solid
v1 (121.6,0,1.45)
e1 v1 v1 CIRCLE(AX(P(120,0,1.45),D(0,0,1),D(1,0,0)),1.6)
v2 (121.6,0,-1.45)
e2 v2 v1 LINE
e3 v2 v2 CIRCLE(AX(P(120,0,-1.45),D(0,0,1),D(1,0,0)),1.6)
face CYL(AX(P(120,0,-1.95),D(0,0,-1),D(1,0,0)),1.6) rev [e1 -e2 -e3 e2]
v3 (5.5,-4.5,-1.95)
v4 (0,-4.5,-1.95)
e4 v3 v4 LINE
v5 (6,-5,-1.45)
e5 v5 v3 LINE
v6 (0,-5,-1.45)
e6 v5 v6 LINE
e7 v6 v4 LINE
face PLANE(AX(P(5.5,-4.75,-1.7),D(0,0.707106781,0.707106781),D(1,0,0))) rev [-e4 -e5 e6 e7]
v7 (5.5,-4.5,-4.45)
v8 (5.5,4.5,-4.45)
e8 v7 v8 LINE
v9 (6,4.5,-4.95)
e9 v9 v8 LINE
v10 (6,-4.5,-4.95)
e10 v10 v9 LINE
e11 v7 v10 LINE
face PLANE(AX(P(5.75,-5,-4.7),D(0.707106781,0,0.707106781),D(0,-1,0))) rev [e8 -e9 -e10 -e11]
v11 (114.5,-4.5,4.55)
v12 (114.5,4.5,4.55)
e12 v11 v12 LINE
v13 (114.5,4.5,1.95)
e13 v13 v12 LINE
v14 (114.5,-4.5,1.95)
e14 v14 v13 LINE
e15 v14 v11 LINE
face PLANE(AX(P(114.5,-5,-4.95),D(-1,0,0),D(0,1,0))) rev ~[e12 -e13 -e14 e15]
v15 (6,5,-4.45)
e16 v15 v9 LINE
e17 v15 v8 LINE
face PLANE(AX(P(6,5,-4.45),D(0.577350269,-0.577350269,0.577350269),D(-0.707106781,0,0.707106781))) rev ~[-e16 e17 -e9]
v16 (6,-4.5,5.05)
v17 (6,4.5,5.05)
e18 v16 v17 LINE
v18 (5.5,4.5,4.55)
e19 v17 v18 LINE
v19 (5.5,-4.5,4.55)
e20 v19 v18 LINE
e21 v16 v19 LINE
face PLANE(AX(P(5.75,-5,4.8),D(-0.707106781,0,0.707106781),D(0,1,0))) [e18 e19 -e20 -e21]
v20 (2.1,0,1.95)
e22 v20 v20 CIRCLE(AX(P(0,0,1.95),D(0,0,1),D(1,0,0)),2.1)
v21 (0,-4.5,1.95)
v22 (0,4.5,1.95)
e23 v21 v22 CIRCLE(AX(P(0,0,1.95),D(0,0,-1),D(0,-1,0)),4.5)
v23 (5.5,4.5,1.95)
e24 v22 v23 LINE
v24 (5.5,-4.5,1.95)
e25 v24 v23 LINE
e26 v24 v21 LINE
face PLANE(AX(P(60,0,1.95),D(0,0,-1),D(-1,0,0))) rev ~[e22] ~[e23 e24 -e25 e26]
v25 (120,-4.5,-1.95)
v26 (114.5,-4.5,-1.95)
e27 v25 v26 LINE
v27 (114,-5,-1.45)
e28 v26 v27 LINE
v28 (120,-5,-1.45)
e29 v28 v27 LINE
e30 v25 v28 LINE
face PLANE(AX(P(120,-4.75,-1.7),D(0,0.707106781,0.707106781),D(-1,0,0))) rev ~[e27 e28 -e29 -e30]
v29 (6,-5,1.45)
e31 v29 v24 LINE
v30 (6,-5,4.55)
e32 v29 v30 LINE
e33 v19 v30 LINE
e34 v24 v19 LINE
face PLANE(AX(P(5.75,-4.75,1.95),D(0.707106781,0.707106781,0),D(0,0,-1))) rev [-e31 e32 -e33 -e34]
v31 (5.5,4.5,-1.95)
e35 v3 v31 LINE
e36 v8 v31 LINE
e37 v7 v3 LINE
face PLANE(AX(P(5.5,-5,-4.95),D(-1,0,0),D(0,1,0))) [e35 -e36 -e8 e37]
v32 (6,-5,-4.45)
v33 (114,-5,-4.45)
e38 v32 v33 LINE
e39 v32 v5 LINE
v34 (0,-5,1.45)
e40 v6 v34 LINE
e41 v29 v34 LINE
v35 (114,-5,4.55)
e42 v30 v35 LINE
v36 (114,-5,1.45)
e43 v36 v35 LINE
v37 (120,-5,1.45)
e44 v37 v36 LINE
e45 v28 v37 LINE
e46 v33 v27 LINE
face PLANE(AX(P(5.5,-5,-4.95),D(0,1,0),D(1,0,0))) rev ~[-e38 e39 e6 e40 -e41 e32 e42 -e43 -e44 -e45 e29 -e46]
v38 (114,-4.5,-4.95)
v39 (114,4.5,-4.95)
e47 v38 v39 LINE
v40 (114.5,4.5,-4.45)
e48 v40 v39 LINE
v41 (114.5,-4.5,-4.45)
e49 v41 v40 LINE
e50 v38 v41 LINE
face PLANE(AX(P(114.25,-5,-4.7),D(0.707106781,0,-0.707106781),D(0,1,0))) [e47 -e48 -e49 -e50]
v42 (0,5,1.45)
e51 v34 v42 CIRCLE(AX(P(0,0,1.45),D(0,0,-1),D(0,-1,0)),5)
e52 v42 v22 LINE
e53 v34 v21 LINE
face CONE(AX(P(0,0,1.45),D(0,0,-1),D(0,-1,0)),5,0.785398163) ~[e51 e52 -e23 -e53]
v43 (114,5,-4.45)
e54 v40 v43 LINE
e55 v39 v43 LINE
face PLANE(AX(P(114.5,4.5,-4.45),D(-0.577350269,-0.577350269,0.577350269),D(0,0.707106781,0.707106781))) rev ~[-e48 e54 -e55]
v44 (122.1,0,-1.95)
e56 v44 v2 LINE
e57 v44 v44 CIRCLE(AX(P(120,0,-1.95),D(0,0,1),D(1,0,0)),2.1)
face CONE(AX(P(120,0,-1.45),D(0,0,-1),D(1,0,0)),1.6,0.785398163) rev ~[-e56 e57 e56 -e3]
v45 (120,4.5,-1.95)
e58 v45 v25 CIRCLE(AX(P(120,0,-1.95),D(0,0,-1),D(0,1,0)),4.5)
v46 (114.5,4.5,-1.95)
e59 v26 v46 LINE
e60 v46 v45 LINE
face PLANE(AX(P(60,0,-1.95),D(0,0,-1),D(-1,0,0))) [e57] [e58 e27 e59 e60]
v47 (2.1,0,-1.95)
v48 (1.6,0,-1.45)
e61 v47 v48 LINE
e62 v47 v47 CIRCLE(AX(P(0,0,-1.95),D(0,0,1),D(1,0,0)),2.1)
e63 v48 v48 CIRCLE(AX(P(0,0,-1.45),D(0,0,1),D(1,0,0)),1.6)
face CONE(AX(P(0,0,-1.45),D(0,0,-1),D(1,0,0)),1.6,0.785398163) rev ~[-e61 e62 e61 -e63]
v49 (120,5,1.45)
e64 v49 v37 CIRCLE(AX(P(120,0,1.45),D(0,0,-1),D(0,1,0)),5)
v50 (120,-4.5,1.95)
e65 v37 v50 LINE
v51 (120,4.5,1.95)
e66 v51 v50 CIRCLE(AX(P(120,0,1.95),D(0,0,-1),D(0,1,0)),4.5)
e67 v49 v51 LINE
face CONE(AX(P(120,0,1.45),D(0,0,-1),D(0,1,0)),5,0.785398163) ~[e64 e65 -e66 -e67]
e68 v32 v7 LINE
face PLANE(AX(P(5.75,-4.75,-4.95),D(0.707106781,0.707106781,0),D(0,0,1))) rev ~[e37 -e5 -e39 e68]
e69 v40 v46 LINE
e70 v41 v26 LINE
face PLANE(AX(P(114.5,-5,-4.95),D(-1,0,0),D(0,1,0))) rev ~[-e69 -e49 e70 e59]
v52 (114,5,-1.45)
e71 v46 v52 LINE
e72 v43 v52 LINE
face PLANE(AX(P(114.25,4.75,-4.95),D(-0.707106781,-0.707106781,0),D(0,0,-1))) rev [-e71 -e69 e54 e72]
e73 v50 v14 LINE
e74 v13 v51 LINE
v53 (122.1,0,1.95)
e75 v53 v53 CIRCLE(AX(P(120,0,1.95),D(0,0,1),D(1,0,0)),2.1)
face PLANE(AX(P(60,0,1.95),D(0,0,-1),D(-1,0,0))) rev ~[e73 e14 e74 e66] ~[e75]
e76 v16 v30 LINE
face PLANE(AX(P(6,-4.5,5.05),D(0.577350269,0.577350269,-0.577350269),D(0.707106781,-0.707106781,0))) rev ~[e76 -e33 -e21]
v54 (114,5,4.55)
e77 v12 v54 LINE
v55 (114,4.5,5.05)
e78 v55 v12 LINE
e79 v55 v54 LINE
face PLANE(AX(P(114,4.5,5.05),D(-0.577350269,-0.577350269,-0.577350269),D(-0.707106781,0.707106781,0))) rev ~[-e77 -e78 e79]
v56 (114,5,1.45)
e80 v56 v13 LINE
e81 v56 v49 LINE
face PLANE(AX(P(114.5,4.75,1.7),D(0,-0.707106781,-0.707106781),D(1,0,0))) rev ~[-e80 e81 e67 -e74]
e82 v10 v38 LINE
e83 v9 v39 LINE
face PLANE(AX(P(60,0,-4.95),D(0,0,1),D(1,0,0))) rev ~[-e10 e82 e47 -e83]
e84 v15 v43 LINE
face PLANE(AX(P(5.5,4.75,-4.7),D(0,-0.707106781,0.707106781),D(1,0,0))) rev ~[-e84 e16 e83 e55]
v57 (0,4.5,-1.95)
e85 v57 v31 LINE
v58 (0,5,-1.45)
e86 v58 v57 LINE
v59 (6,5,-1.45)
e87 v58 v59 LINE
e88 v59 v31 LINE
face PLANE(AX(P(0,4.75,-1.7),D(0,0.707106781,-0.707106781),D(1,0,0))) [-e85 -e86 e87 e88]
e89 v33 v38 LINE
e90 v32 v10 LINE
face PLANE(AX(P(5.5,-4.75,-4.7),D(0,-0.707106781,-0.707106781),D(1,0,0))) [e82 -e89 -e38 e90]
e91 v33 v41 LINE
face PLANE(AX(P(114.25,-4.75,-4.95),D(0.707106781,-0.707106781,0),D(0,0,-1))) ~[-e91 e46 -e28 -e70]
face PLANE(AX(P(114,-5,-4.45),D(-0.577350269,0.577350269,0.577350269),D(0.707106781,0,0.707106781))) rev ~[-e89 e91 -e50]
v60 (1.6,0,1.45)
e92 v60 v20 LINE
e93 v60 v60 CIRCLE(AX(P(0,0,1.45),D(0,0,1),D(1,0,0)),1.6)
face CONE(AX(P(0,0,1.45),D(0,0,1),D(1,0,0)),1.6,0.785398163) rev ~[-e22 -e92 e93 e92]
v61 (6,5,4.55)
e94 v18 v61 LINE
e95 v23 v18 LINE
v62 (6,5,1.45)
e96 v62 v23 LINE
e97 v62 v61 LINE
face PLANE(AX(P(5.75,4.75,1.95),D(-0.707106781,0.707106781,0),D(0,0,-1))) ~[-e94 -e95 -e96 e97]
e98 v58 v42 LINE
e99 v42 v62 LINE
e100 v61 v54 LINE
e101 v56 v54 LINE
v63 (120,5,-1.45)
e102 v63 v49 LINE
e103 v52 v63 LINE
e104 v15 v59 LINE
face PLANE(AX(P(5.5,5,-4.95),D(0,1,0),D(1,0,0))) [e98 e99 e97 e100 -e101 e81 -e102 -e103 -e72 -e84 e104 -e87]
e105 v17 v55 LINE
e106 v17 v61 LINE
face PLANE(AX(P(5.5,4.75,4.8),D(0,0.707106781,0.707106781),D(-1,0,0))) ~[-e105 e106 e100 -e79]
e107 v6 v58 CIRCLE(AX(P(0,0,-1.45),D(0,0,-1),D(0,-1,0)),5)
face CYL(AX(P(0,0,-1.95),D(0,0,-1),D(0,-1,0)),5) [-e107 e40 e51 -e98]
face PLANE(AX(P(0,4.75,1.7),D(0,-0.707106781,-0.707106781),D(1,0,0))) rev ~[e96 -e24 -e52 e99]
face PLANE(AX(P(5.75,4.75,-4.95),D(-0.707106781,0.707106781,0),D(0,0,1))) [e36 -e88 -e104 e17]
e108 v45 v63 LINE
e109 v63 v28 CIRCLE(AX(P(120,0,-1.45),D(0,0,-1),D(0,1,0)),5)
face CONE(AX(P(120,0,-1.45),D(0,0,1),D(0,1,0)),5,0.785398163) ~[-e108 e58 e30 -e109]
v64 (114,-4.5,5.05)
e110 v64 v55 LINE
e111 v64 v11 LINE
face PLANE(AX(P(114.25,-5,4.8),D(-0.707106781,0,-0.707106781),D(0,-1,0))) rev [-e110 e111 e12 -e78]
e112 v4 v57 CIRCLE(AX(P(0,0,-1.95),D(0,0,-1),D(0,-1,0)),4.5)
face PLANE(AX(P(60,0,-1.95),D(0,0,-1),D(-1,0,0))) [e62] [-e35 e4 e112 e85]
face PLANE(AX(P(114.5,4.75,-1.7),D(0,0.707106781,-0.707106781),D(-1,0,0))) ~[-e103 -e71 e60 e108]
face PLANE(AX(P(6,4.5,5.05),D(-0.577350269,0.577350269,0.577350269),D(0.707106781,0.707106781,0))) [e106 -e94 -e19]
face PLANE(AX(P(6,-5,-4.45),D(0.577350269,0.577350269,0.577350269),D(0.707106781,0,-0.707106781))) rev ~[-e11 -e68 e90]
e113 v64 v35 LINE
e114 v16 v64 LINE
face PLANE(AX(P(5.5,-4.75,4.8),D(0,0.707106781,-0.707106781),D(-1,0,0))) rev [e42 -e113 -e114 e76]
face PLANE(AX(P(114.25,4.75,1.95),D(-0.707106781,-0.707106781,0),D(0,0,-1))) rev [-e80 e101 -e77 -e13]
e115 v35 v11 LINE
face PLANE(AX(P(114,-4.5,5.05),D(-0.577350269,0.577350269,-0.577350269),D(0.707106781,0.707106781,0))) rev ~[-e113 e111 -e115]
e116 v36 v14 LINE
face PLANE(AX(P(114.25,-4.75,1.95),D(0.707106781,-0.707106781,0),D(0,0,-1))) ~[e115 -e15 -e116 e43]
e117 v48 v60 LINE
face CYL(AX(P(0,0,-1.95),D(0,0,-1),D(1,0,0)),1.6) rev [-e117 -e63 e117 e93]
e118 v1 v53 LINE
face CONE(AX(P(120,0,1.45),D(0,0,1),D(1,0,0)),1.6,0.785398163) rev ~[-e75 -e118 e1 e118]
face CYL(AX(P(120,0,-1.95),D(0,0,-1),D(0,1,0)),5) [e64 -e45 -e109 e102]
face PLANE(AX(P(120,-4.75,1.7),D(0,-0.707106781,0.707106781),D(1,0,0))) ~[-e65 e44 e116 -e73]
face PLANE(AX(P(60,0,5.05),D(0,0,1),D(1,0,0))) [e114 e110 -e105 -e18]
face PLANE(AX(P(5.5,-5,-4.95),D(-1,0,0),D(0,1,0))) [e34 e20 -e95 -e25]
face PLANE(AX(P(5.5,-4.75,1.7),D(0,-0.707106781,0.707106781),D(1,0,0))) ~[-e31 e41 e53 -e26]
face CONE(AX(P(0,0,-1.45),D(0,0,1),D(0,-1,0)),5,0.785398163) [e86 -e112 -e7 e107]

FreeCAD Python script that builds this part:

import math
import FreeCAD as App
import Part
import Sketcher

V = App.Vector
Q = App.Units.Quantity


def edges_at(feature, points):
    """Names of the edges that pass closest to the given points."""
    edges = feature.Shape.Edges
    near = lambda p: min(range(len(edges)), key=lambda i: edges[i].distToShape(Part.Vertex(*p))[0])
    return sorted({f"Edge{near(p) + 1}" for p in points})


def add_polygon(sketch, points):
    """Adds a closed chain of lines whose ends are joined by coincident constraints."""
    first, n = sketch.GeometryCount, len(points)
    for a, b in zip(points, points[1:] + points[:1]):
        sketch.addGeometry(Part.LineSegment(App.Vector(*a, 0), App.Vector(*b, 0)), False)
    for i in range(n):
        sketch.addConstraint(Sketcher.Constraint("Coincident", first + i, 2, first + (i + 1) % n, 1))

doc = App.newDocument("Part")
body = doc.addObject("PartDesign::Body", "Body")

# Sketch on XY plane
sketch1 = body.newObject("Sketcher::SketchObject", "Sketch")
sketch1.AttachmentSupport = (doc.getObject("XY_Plane"), [""])
sketch1.MapMode = "FlatFace"
sketch1.addGeometry([
    Part.LineSegment(V(120, 5, 0), V(0, 5, 0)),  # 0
    Part.ArcOfCircle(Part.Circle(V(0, 0, 0), V(0, 0, 1), 5), math.radians(90), math.radians(270)),  # 1
    Part.LineSegment(V(0, -5, 0), V(120, -5, 0)),  # 2
    Part.ArcOfCircle(Part.Circle(V(120, 0, 0), V(0, 0, 1), 5), math.radians(-90), math.radians(90)),  # 3
    Part.Circle(V(120, 0, 0), V(0, 0, 1), 1.6),  # 4
    Part.Circle(V(0, 0, 0), V(0, 0, 1), 1.6),  # 5
], False)
sketch1.addConstraint([
    Sketcher.Constraint("Tangent", 0, 2, 1, 1),
    Sketcher.Constraint("Tangent", 1, 2, 2, 1),
    Sketcher.Constraint("Tangent", 2, 2, 3, 1),
    Sketcher.Constraint("Tangent", 3, 2, 0, 1),
    Sketcher.Constraint("Horizontal", 0),
    Sketcher.Constraint("Horizontal", 2),
    Sketcher.Constraint("Coincident", 1, 3, -1, 1),
    Sketcher.Constraint("Coincident", 5, 3, -1, 1),
    Sketcher.Constraint("Coincident", 4, 3, 3, 3),
    Sketcher.Constraint("Equal", 4, 5),
    Sketcher.Constraint("Radius", 1, Q("5 mm")),
    Sketcher.Constraint("Diameter", 4, Q("3.2 mm")),
    Sketcher.Constraint("DistanceX", 0, 2, 0, 1, Q("120 mm")),
])
pad1 = body.newObject("PartDesign::Pad", "Pad")
pad1.Profile = sketch1
pad1.Type = "TwoLengths"
pad1.Length = 1.95
pad1.Length2 = 1.95

# Sketch on XY plane
sketch2 = body.newObject("Sketcher::SketchObject", "Sketch001")
sketch2.AttachmentSupport = (doc.getObject("XY_Plane"), [""])
sketch2.MapMode = "FlatFace"
sketch2.AttachmentOffset = App.Placement(V(0, 0, 1.95), App.Rotation())
add_polygon(sketch2, [(6, 5), (6, -5), (114, -5), (114, 5)])  # lines 0-3
sketch2.addConstraint([
    Sketcher.Constraint("Vertical", 0),
    Sketcher.Constraint("Horizontal", 1),
    Sketcher.Constraint("Vertical", 2),
    Sketcher.Constraint("Horizontal", 3),
    Sketcher.Constraint("DistanceX", 1, 1, 1, 2, Q("109 mm")),
    Sketcher.Constraint("DistanceY", 0, 2, 0, 1, Q("10 mm")),
    Sketcher.Constraint("DistanceY", 0, 2, -1, 1, Q("5 mm")),
    Sketcher.Constraint("DistanceX", -1, 1, 0, 2, Q("5.5 mm")),
])
pad2 = body.newObject("PartDesign::Pad", "Pad001")
pad2.Profile = sketch2
pad2.Type = "TwoLengths"
pad2.Length = 3.1
pad2.Length2 = 6.9
doc.recompute()

chamfer = body.newObject("PartDesign::Chamfer", "Chamfer")
chamfer.Base = (pad2, edges_at(pad2, [
    (125, 0, -1.95),
    (-1.6, 0, -1.95),
    (117.25, 5, -1.95),
    (118.4, 0, -1.95),
    (-5, 0, 1.95),
    (2.75, -5, 1.95),
    (125, 0, 1.95),
    (117.25, 5, 1.95),
    (-1.6, 0, 1.95),
    (118.4, 0, 1.95),
    (117.25, -5, 1.95),
    (2.75, 5, 1.95),
    (2.75, 5, -1.95),
    (117.25, -5, -1.95),
    (-5, 0, -1.95),
    (5.5, 0, -4.95),
    (5.5, -5, -3.45),
    (60, 5, -4.95),
    (5.5, 5, -3.45),
    (114.5, 0, -4.95),
    (114.5, 5, -3.45),
    (60, -5, -4.95),
    (114.5, -5, -3.45),
    (5.5, -5, 3.5),
    (5.5, 5, 3.5),
    (114.5, 5, 3.5),
    (114.5, -5, 3.5),
    (5.5, 0, 5.05),
    (60, -5, 5.05),
    (114.5, 0, 5.05),
    (60, 5, 5.05),
    (2.75, -5, -1.95),
]))
chamfer.Size = 0.5

doc.recompute()
